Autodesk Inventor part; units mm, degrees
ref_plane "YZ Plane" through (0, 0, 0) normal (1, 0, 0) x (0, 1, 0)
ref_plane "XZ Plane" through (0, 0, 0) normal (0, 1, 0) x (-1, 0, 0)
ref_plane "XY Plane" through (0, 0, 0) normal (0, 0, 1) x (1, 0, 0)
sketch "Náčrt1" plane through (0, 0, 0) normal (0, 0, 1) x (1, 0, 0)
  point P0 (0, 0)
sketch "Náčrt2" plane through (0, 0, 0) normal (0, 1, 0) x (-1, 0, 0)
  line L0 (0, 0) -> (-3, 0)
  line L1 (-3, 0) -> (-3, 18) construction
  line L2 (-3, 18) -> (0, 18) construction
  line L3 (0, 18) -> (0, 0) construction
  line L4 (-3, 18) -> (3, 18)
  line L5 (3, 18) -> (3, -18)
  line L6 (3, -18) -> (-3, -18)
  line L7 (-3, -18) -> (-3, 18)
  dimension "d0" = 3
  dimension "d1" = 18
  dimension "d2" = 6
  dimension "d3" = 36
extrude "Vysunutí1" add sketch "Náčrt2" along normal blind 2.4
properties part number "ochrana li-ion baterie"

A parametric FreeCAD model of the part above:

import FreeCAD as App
import Part
import Sketcher


def add_polygon(sketch, points):
    """Adds a closed chain of lines whose ends are joined by coincident constraints."""
    first, n = sketch.GeometryCount, len(points)
    for a, b in zip(points, points[1:] + points[:1]):
        sketch.addGeometry(Part.LineSegment(App.Vector(*a, 0), App.Vector(*b, 0)), False)
    for i in range(n):
        sketch.addConstraint(Sketcher.Constraint("Coincident", first + i, 2, first + (i + 1) % n, 1))

doc = App.newDocument("Part")
params = doc.addObject("Spreadsheet::Sheet", "Params")
for row, (alias, value) in enumerate([
    ("sketch1_width", "6 mm"),
    ("sketch1_height", "36 mm"),
    ("pad1_length", "2.4 mm"),
], start=1):
    params.set(f"A{row}", alias)
    params.set(f"B{row}", "=" + value)
    params.setAlias(f"B{row}", alias)

body = doc.addObject("PartDesign::Body", "Body")

sketch1 = body.newObject("Sketcher::SketchObject", "Sketch")
sketch1.AttachmentSupport = (doc.getObject("XZ_Plane"), [""])
sketch1.MapMode = "FlatFace"
add_polygon(sketch1, [(-3, 18), (3, 18), (3, -18), (-3, -18)])
sketch1.addConstraint([
    Sketcher.Constraint("Horizontal", 0),
    Sketcher.Constraint("Vertical", 1),
    Sketcher.Constraint("Horizontal", 2),
    Sketcher.Constraint("Vertical", 3),
    Sketcher.Constraint("Symmetric", 0, 2, 2, 2, -1, 1),
    Sketcher.Constraint("DistanceX", 0, 1, 0, 2, 6.0),
    Sketcher.Constraint("DistanceY", 1, 2, 1, 1, 36.0),
])
sketch1.setExpression("Constraints[9]", "Params.sketch1_width")
sketch1.setExpression("Constraints[10]", "Params.sketch1_height")
pad1 = body.newObject("PartDesign::Pad", "Pad")
pad1.Profile = sketch1
pad1.setExpression("Length", "Params.pad1_length")
pad1.Reversed = True

doc.recompute()
